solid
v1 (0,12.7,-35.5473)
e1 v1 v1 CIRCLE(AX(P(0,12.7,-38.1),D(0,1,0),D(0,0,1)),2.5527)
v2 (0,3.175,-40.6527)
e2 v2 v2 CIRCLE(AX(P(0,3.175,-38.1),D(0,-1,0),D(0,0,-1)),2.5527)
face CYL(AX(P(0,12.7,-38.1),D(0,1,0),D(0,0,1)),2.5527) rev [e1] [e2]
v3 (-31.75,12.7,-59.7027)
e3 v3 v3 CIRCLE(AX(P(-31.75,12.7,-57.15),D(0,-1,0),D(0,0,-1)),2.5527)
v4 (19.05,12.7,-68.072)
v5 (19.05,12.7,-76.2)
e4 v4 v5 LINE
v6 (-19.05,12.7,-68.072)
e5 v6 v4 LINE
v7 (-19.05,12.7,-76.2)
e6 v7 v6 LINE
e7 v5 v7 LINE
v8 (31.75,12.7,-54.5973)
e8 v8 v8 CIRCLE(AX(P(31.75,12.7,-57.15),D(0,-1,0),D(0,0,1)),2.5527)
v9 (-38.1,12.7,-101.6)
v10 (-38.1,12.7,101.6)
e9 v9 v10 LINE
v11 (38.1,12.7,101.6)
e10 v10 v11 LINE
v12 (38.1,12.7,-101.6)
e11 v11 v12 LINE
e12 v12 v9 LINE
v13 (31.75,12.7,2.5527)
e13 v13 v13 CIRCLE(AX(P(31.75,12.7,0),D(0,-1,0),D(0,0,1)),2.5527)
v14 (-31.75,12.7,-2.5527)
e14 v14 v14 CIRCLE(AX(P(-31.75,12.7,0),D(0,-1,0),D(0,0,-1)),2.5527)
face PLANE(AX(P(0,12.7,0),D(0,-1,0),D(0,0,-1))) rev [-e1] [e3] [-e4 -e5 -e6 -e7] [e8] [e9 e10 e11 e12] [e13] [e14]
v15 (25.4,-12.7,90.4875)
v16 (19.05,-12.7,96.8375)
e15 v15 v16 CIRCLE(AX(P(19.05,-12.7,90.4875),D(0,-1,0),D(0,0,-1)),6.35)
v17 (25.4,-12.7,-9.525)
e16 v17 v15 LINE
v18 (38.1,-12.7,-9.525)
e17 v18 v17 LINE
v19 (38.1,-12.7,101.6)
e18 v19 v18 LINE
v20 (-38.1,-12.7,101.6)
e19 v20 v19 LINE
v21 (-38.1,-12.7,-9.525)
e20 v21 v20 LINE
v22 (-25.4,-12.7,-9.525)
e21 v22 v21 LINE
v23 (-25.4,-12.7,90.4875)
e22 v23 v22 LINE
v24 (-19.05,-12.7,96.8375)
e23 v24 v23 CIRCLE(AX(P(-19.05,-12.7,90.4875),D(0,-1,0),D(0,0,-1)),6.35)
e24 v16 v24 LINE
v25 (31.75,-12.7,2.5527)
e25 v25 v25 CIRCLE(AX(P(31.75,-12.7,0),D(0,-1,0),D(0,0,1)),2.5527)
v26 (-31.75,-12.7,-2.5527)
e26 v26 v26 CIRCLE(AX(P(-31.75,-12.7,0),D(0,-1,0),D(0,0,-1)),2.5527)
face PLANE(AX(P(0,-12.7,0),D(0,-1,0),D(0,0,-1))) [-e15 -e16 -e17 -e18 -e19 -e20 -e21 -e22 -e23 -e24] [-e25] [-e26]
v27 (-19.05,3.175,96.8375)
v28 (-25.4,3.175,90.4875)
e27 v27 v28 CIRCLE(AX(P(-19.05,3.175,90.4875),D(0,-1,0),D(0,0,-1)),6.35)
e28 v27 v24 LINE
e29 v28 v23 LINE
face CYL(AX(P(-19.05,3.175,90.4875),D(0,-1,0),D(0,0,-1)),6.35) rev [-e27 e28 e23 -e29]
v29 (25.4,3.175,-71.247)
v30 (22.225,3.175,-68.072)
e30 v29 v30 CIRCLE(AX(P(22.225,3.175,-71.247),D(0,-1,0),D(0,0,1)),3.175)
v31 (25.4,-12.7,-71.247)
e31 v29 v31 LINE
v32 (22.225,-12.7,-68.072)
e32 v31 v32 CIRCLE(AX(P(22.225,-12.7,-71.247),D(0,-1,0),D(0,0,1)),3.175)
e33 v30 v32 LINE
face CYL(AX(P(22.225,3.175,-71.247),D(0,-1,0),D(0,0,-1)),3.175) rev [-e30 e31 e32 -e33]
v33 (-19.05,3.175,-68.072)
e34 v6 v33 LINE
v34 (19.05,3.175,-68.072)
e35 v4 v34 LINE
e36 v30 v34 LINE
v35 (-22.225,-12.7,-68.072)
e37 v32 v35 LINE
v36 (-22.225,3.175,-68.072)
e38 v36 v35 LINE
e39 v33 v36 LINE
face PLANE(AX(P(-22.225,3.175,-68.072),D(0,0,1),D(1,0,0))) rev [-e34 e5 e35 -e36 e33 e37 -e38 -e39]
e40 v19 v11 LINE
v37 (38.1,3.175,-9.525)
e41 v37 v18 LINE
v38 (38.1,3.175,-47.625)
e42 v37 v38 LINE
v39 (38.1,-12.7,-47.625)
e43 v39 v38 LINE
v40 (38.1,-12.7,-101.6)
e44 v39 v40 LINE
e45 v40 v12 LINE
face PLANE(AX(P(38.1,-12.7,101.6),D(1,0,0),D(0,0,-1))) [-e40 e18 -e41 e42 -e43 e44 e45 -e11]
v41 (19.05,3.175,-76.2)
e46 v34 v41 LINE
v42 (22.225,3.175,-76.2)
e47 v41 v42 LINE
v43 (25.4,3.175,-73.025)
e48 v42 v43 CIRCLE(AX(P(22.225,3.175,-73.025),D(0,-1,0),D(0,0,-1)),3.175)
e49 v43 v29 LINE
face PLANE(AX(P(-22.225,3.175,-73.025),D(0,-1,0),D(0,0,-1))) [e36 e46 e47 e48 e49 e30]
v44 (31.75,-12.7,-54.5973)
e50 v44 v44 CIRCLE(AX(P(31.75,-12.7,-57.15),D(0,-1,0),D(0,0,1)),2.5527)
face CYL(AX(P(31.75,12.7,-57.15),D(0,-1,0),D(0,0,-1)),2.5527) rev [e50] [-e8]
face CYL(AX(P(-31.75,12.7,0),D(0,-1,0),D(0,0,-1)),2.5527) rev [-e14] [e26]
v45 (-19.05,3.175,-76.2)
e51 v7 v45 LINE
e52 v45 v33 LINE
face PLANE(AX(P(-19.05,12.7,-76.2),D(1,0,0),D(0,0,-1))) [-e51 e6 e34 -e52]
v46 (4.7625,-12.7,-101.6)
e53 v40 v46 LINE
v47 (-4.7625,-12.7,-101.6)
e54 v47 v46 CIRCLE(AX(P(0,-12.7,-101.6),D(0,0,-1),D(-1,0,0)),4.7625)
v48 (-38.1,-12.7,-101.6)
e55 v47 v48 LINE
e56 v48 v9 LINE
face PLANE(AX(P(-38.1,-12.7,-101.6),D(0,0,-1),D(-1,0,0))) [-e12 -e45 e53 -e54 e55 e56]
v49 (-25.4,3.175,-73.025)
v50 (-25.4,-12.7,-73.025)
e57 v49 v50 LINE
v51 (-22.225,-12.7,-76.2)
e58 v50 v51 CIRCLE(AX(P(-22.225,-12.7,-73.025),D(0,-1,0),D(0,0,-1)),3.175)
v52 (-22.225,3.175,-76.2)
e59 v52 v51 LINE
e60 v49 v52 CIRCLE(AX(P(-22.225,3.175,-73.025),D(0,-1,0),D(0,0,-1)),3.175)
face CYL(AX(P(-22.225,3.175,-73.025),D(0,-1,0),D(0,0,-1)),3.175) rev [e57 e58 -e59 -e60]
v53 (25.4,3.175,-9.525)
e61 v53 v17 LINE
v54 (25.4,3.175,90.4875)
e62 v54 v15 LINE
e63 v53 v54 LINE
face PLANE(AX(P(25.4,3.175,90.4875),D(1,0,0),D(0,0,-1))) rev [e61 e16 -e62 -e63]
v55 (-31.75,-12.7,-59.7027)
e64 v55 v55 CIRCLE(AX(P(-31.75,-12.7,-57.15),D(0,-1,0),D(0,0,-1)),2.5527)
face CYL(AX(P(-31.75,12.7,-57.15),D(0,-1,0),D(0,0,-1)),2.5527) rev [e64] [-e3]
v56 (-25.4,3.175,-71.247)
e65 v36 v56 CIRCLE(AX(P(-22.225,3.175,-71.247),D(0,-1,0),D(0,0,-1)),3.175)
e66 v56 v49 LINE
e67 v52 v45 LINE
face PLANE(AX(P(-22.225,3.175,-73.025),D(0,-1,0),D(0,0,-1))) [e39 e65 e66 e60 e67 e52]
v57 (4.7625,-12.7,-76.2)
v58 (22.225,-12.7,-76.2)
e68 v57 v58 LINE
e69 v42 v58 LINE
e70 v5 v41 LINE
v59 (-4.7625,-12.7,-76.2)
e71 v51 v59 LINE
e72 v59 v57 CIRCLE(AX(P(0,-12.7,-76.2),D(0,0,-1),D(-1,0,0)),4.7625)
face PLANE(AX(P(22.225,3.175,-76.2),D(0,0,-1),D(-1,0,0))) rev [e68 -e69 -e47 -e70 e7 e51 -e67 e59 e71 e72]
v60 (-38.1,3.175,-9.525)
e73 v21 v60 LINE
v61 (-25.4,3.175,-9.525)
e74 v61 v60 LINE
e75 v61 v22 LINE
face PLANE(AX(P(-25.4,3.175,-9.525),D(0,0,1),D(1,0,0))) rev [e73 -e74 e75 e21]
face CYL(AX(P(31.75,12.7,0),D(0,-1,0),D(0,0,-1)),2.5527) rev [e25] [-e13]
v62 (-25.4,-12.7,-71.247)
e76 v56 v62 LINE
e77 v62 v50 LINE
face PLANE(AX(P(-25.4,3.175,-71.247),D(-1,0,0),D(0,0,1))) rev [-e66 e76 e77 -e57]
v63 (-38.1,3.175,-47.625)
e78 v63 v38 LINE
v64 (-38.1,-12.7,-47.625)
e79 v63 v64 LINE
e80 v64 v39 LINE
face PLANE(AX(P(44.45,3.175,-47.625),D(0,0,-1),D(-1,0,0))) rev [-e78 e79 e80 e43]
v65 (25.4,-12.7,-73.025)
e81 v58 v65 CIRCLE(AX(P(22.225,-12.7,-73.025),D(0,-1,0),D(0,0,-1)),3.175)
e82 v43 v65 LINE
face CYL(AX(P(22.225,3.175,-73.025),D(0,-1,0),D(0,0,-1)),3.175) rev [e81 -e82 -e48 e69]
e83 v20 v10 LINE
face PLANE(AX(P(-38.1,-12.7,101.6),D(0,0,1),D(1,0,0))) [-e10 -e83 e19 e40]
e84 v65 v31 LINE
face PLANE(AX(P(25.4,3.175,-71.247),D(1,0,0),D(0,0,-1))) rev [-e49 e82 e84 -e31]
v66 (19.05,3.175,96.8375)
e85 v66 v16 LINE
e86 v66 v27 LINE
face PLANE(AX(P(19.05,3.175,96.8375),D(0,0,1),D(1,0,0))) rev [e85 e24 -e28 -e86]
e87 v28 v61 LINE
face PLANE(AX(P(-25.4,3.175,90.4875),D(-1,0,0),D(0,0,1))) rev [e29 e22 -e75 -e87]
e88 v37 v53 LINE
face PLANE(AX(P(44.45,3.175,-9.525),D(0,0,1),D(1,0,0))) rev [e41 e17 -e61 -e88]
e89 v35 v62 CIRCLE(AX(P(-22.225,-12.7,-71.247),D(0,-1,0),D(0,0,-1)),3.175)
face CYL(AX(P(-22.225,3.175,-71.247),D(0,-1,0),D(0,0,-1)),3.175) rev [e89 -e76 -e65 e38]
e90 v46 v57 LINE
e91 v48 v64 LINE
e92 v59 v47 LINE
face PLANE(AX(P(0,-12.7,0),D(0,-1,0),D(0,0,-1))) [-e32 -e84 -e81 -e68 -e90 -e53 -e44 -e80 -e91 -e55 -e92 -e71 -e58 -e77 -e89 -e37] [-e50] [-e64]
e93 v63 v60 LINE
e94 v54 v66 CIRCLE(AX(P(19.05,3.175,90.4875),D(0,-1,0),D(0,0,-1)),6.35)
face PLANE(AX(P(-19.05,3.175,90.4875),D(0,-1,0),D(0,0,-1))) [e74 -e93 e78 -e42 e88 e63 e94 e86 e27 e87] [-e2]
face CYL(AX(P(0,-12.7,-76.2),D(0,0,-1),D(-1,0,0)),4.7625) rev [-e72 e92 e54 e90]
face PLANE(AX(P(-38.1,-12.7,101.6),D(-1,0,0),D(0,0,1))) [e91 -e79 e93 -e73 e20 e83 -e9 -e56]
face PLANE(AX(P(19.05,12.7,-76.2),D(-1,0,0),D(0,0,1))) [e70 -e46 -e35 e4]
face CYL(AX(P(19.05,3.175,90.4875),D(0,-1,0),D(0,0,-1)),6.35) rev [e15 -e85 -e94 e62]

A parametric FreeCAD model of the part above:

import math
import FreeCAD as App
import Part
import Sketcher
Q = App.Units.Quantity

doc = App.newDocument("Part")
body = doc.addObject("PartDesign::Body", "Body")

# Sketch on XZ plane
sketch1 = doc.addObject("Sketcher::SketchObject", "Sketch")
body.addObject(sketch1)
sketch1.AttachmentSupport = (doc.XZ_Plane, [""])
sketch1.MapMode = "FlatFace"
sketch1.addGeometry([
    Part.LineSegment(App.Vector(-38, -102, 0), App.Vector(-38, 102, 0)),
    Part.LineSegment(App.Vector(-38, 102, 0), App.Vector(38, 102, 0)),
    Part.LineSegment(App.Vector(38, 102, 0), App.Vector(38, -102, 0)),
    Part.LineSegment(App.Vector(38, -102, 0), App.Vector(-38, -102, 0)),
], False)
sketch1.addConstraint([
    Sketcher.Constraint("Coincident", 0, 2, 1, 1),
    Sketcher.Constraint("Coincident", 1, 2, 2, 1),
    Sketcher.Constraint("Coincident", 2, 2, 3, 1),
    Sketcher.Constraint("Coincident", 3, 2, 0, 1),
    Sketcher.Constraint("Vertical", 0),
    Sketcher.Constraint("Horizontal", 1),
    Sketcher.Constraint("Vertical", 2),
    Sketcher.Constraint("Horizontal", 3),
    Sketcher.Constraint("Symmetric", 0, 2, 2, 2, -1, 1),
    Sketcher.Constraint("DistanceX", 1, 1, 1, 2, Q("3 in")),
    Sketcher.Constraint("DistanceY", 0, 1, 0, 2, Q("8 in")),
])
pad1 = doc.addObject("PartDesign::Pad", "Pad")
body.addObject(pad1)
pad1.Profile = sketch1
pad1.Type = "TwoLengths"
pad1.Length = Q("0.5 in")
pad1.Length2 = Q("0.5 in")
pad1.Reversed = True

# Sketch on XY plane
sketch2 = doc.addObject("Sketcher::SketchObject", "Sketch001")
body.addObject(sketch2)
sketch2.AttachmentSupport = (doc.XY_Plane, [""])
sketch2.MapMode = "FlatFace"
sketch2.AttachmentOffset = App.Placement(App.Vector(0, 0, -4 * 25.4), App.Rotation())
sketch2.addGeometry(Part.Circle(App.Vector(0, -12.7, 0), App.Vector(0, 0, 1), 4.8), False)
sketch2.addConstraint([
    Sketcher.Constraint("PointOnObject", 0, 3, -2),
    Sketcher.Constraint("Diameter", 0, Q("0.375 in")),
    Sketcher.Constraint("DistanceY", 0, 3, -1, 1, Q("0.5 in")),
])
pocket1 = doc.addObject("PartDesign::Pocket", "Pocket")
body.addObject(pocket1)
pocket1.Profile = sketch2
pocket1.Length = Q("1 in")
pocket1.Reversed = True

# Sketch on XZ plane
sketch3 = doc.addObject("Sketcher::SketchObject", "Sketch002")
body.addObject(sketch3)
sketch3.AttachmentSupport = (doc.XZ_Plane, [""])
sketch3.MapMode = "FlatFace"
sketch3.AttachmentOffset = App.Placement(App.Vector(0, 0, 0.5 * 25.4), App.Rotation())
sketch3.addGeometry([
    Part.LineSegment(App.Vector(19.1, 96.8, 0), App.Vector(-19.1, 96.8, 0)),  # 0
    Part.ArcOfCircle(Part.Circle(App.Vector(-19.1, 90.5, 0), App.Vector(0, 0, 1), 6.3), math.radians(90), math.radians(180)),  # 1
    Part.LineSegment(App.Vector(-25.4, 90.5, 0), App.Vector(-25.4, -9.5, 0)),  # 2
    Part.LineSegment(App.Vector(-25.4, -9.5, 0), App.Vector(-44.5, -9.5, 0)),  # 3
    Part.LineSegment(App.Vector(-44.5, -9.5, 0), App.Vector(-44.5, -47.6, 0)),  # 4
    Part.LineSegment(App.Vector(-44.5, -47.6, 0), App.Vector(44.5, -47.6, 0)),  # 5
    Part.LineSegment(App.Vector(44.5, -47.6, 0), App.Vector(44.5, -9.5, 0)),  # 6
    Part.LineSegment(App.Vector(44.5, -9.5, 0), App.Vector(25.4, -9.5, 0)),  # 7
    Part.LineSegment(App.Vector(25.4, -9.5, 0), App.Vector(25.4, 90.5, 0)),  # 8
    Part.ArcOfCircle(Part.Circle(App.Vector(19.1, 90.5, 0), App.Vector(0, 0, 1), 6.3), math.radians(0), math.radians(90)),  # 9
    Part.LineSegment(App.Vector(-22.2, -76.2, 0), App.Vector(22.2, -76.2, 0)),  # 10
    Part.ArcOfCircle(Part.Circle(App.Vector(22.2, -73, 0), App.Vector(0, 0, 1), 3.2), math.radians(-90), math.radians(0)),  # 11
    Part.LineSegment(App.Vector(25.4, -73, 0), App.Vector(25.4, -71.2, 0)),  # 12
    Part.ArcOfCircle(Part.Circle(App.Vector(22.2, -71.2, 0), App.Vector(0, 0, 1), 3.2), math.radians(0), math.radians(90)),  # 13
    Part.LineSegment(App.Vector(22.2, -68.1, 0), App.Vector(-22.2, -68.1, 0)),  # 14
    Part.ArcOfCircle(Part.Circle(App.Vector(-22.2, -71.2, 0), App.Vector(0, 0, 1), 3.2), math.radians(90), math.radians(180)),  # 15
    Part.LineSegment(App.Vector(-25.4, -71.2, 0), App.Vector(-25.4, -73, 0)),  # 16
    Part.ArcOfCircle(Part.Circle(App.Vector(-22.2, -73, 0), App.Vector(0, 0, 1), 3.2), math.radians(-180), math.radians(-90)),  # 17
], False)
sketch3.addConstraint([
    Sketcher.Constraint("Tangent", 0, 2, 1, 1),
    Sketcher.Constraint("Tangent", 1, 2, 2, 1),
    Sketcher.Constraint("Coincident", 2, 2, 3, 1),
    Sketcher.Constraint("Coincident", 3, 2, 4, 1),
    Sketcher.Constraint("Coincident", 4, 2, 5, 1),
    Sketcher.Constraint("Coincident", 5, 2, 6, 1),
    Sketcher.Constraint("Coincident", 6, 2, 7, 1),
    Sketcher.Constraint("Coincident", 7, 2, 8, 1),
    Sketcher.Constraint("Tangent", 8, 2, 9, 1),
    Sketcher.Constraint("Tangent", 9, 2, 0, 1),
    Sketcher.Constraint("Tangent", 10, 2, 11, 1),
    Sketcher.Constraint("Tangent", 11, 2, 12, 1),
    Sketcher.Constraint("Tangent", 12, 2, 13, 1),
    Sketcher.Constraint("Tangent", 13, 2, 14, 1),
    Sketcher.Constraint("Tangent", 14, 2, 15, 1),
    Sketcher.Constraint("Tangent", 15, 2, 16, 1),
    Sketcher.Constraint("Tangent", 16, 2, 17, 1),
    Sketcher.Constraint("Tangent", 17, 2, 10, 1),
    Sketcher.Constraint("Horizontal", 0),
    Sketcher.Constraint("Vertical", 2),
    Sketcher.Constraint("Horizontal", 3),
    Sketcher.Constraint("Vertical", 4),
    Sketcher.Constraint("Horizontal", 5),
    Sketcher.Constraint("Vertical", 6),
    Sketcher.Constraint("Horizontal", 7),
    Sketcher.Constraint("Vertical", 8),
    Sketcher.Constraint("Horizontal", 10),
    Sketcher.Constraint("Vertical", 12),
    Sketcher.Constraint("Horizontal", 14),
    Sketcher.Constraint("Vertical", 16),
    Sketcher.Constraint("Equal", 1, 9),
    Sketcher.Constraint("Equal", 11, 13),
    Sketcher.Constraint("Equal", 13, 15),
    Sketcher.Constraint("Equal", 15, 17),
    Sketcher.Constraint("Symmetric", 3, 2, 6, 2, -2),
    Sketcher.Constraint("Vertical", 8, 2, 11, 2),
    Sketcher.Constraint("Vertical", 2, 2, 15, 2),
    Sketcher.Constraint("Equal", 3, 7),
    Sketcher.Constraint("Equal", 0, 4),
    Sketcher.Constraint("Radius", 1, Q("0.25 in")),
    Sketcher.Constraint("DistanceX", 0, 2, 0, 1, Q("1.5 in")),
    Sketcher.Constraint("DistanceX", 5, 1, 5, 2, Q("3.5 in")),
    Sketcher.Constraint("DistanceY", 10, 2, -1, 1, Q("3 in")),
    Sketcher.Constraint("Radius", 11, Q("0.125 in")),
    Sketcher.Constraint("DistanceY", 17, 3, 4, 2, Q("1 in")),
    Sketcher.Constraint("DistanceY", 12, 1, 12, 2, Q("0.07 in")),
    Sketcher.Constraint("DistanceY", 2, 2, 2, 1, Q("3.9375 in")),
])
pocket2 = doc.addObject("PartDesign::Pocket", "Pocket001")
body.addObject(pocket2)
pocket2.Profile = sketch3
pocket2.Length = Q("0.625 in")

# Sketch on XZ plane
sketch4 = doc.addObject("Sketcher::SketchObject", "Sketch003")
body.addObject(sketch4)
sketch4.AttachmentSupport = (doc.XZ_Plane, [""])
sketch4.MapMode = "FlatFace"
sketch4.addGeometry([
    Part.LineSegment(App.Vector(-19, -76, 0), App.Vector(-19, -68, 0)),
    Part.LineSegment(App.Vector(-19, -68, 0), App.Vector(19, -68, 0)),
    Part.LineSegment(App.Vector(19, -68, 0), App.Vector(19, -76, 0)),
    Part.LineSegment(App.Vector(19, -76, 0), App.Vector(-19, -76, 0)),
], False)
sketch4.addConstraint([
    Sketcher.Constraint("Coincident", 0, 2, 1, 1),
    Sketcher.Constraint("Coincident", 1, 2, 2, 1),
    Sketcher.Constraint("Coincident", 2, 2, 3, 1),
    Sketcher.Constraint("Coincident", 3, 2, 0, 1),
    Sketcher.Constraint("Vertical", 0),
    Sketcher.Constraint("Horizontal", 1),
    Sketcher.Constraint("Vertical", 2),
    Sketcher.Constraint("Horizontal", 3),
    Sketcher.Constraint("DistanceX", 1, 1, 1, 2, Q("1.5 in")),
    Sketcher.Constraint("DistanceY", 2, 2, -1, 1, Q("3 in")),
    Sketcher.Constraint("DistanceY", 0, 1, 0, 2, Q("0.32 in")),
    Sketcher.Constraint("DistanceX", 0, 2, -1, 1, Q("0.75 in")),
])
pocket3 = doc.addObject("PartDesign::Pocket", "Pocket002")
body.addObject(pocket3)
pocket3.Profile = sketch4
pocket3.Type = "ThroughAll"

# Sketch on XZ plane
sketch5 = doc.addObject("Sketcher::SketchObject", "Sketch004")
body.addObject(sketch5)
sketch5.AttachmentSupport = (doc.XZ_Plane, [""])
sketch5.MapMode = "FlatFace"
sketch5.AttachmentOffset = App.Placement(App.Vector(0, 0, -0.5 * 25.4), App.Rotation())
sketch5.addGeometry(Part.Circle(App.Vector(0, -38.1, 0), App.Vector(0, 0, 1), 2.6), False)
sketch5.addConstraint([
    Sketcher.Constraint("PointOnObject", 0, 3, -2),
    Sketcher.Constraint("Diameter", 0, Q("0.201 in")),
    Sketcher.Constraint("DistanceY", 0, 3, -1, 1, Q("1.5 in")),
])
doc.recompute()
hole = doc.addObject("PartDesign::Hole", "Hole")
body.addObject(hole)
hole.Profile = sketch5
hole.ThreadType = "None"
hole.Diameter = Q("0.201 in")
hole.DepthType = "Dimension"
hole.Depth = Q("0.75 in")
hole.DrillPoint = "Angled"
hole.DrillPointAngle = 118
hole.Reversed = True

# Sketch on XZ plane
sketch6 = doc.addObject("Sketcher::SketchObject", "Sketch005")
body.addObject(sketch6)
sketch6.AttachmentSupport = (doc.XZ_Plane, [""])
sketch6.MapMode = "FlatFace"
sketch6.AttachmentOffset = App.Placement(App.Vector(0, 0, 0.5 * 25.4), App.Rotation())
sketch6.addGeometry([
    Part.Circle(App.Vector(-31.8, -57.1, 0), App.Vector(0, 0, 1), 2.6),
    Part.Circle(App.Vector(-31.8, 0, 0), App.Vector(0, 0, 1), 2.6),
    Part.Circle(App.Vector(31.8, 0, 0), App.Vector(0, 0, 1), 2.6),
    Part.Circle(App.Vector(31.8, -57.1, 0), App.Vector(0, 0, 1), 2.6),
], False)
sketch6.addConstraint([
    Sketcher.Constraint("Equal", 0, 1),
    Sketcher.Constraint("Equal", 1, 2),
    Sketcher.Constraint("Equal", 2, 3),
    Sketcher.Constraint("Symmetric", 1, 3, 2, 3, -1, 1),
    Sketcher.Constraint("Symmetric", 0, 3, 3, 3, -2),
    Sketcher.Constraint("PointOnObject", 1, 3, -1),
    Sketcher.Constraint("Vertical", 0, 3, 1, 3),
    Sketcher.Constraint("Diameter", 0, Q("0.201 in")),
    Sketcher.Constraint("DistanceX", 1, 3, 2, 3, Q("2.5 in")),
    Sketcher.Constraint("DistanceY", 0, 3, -1, 1, Q("2.25 in")),
])
pocket4 = doc.addObject("PartDesign::Pocket", "Pocket003")
body.addObject(pocket4)
pocket4.Profile = sketch6
pocket4.Type = "ThroughAll"

doc.recompute()
